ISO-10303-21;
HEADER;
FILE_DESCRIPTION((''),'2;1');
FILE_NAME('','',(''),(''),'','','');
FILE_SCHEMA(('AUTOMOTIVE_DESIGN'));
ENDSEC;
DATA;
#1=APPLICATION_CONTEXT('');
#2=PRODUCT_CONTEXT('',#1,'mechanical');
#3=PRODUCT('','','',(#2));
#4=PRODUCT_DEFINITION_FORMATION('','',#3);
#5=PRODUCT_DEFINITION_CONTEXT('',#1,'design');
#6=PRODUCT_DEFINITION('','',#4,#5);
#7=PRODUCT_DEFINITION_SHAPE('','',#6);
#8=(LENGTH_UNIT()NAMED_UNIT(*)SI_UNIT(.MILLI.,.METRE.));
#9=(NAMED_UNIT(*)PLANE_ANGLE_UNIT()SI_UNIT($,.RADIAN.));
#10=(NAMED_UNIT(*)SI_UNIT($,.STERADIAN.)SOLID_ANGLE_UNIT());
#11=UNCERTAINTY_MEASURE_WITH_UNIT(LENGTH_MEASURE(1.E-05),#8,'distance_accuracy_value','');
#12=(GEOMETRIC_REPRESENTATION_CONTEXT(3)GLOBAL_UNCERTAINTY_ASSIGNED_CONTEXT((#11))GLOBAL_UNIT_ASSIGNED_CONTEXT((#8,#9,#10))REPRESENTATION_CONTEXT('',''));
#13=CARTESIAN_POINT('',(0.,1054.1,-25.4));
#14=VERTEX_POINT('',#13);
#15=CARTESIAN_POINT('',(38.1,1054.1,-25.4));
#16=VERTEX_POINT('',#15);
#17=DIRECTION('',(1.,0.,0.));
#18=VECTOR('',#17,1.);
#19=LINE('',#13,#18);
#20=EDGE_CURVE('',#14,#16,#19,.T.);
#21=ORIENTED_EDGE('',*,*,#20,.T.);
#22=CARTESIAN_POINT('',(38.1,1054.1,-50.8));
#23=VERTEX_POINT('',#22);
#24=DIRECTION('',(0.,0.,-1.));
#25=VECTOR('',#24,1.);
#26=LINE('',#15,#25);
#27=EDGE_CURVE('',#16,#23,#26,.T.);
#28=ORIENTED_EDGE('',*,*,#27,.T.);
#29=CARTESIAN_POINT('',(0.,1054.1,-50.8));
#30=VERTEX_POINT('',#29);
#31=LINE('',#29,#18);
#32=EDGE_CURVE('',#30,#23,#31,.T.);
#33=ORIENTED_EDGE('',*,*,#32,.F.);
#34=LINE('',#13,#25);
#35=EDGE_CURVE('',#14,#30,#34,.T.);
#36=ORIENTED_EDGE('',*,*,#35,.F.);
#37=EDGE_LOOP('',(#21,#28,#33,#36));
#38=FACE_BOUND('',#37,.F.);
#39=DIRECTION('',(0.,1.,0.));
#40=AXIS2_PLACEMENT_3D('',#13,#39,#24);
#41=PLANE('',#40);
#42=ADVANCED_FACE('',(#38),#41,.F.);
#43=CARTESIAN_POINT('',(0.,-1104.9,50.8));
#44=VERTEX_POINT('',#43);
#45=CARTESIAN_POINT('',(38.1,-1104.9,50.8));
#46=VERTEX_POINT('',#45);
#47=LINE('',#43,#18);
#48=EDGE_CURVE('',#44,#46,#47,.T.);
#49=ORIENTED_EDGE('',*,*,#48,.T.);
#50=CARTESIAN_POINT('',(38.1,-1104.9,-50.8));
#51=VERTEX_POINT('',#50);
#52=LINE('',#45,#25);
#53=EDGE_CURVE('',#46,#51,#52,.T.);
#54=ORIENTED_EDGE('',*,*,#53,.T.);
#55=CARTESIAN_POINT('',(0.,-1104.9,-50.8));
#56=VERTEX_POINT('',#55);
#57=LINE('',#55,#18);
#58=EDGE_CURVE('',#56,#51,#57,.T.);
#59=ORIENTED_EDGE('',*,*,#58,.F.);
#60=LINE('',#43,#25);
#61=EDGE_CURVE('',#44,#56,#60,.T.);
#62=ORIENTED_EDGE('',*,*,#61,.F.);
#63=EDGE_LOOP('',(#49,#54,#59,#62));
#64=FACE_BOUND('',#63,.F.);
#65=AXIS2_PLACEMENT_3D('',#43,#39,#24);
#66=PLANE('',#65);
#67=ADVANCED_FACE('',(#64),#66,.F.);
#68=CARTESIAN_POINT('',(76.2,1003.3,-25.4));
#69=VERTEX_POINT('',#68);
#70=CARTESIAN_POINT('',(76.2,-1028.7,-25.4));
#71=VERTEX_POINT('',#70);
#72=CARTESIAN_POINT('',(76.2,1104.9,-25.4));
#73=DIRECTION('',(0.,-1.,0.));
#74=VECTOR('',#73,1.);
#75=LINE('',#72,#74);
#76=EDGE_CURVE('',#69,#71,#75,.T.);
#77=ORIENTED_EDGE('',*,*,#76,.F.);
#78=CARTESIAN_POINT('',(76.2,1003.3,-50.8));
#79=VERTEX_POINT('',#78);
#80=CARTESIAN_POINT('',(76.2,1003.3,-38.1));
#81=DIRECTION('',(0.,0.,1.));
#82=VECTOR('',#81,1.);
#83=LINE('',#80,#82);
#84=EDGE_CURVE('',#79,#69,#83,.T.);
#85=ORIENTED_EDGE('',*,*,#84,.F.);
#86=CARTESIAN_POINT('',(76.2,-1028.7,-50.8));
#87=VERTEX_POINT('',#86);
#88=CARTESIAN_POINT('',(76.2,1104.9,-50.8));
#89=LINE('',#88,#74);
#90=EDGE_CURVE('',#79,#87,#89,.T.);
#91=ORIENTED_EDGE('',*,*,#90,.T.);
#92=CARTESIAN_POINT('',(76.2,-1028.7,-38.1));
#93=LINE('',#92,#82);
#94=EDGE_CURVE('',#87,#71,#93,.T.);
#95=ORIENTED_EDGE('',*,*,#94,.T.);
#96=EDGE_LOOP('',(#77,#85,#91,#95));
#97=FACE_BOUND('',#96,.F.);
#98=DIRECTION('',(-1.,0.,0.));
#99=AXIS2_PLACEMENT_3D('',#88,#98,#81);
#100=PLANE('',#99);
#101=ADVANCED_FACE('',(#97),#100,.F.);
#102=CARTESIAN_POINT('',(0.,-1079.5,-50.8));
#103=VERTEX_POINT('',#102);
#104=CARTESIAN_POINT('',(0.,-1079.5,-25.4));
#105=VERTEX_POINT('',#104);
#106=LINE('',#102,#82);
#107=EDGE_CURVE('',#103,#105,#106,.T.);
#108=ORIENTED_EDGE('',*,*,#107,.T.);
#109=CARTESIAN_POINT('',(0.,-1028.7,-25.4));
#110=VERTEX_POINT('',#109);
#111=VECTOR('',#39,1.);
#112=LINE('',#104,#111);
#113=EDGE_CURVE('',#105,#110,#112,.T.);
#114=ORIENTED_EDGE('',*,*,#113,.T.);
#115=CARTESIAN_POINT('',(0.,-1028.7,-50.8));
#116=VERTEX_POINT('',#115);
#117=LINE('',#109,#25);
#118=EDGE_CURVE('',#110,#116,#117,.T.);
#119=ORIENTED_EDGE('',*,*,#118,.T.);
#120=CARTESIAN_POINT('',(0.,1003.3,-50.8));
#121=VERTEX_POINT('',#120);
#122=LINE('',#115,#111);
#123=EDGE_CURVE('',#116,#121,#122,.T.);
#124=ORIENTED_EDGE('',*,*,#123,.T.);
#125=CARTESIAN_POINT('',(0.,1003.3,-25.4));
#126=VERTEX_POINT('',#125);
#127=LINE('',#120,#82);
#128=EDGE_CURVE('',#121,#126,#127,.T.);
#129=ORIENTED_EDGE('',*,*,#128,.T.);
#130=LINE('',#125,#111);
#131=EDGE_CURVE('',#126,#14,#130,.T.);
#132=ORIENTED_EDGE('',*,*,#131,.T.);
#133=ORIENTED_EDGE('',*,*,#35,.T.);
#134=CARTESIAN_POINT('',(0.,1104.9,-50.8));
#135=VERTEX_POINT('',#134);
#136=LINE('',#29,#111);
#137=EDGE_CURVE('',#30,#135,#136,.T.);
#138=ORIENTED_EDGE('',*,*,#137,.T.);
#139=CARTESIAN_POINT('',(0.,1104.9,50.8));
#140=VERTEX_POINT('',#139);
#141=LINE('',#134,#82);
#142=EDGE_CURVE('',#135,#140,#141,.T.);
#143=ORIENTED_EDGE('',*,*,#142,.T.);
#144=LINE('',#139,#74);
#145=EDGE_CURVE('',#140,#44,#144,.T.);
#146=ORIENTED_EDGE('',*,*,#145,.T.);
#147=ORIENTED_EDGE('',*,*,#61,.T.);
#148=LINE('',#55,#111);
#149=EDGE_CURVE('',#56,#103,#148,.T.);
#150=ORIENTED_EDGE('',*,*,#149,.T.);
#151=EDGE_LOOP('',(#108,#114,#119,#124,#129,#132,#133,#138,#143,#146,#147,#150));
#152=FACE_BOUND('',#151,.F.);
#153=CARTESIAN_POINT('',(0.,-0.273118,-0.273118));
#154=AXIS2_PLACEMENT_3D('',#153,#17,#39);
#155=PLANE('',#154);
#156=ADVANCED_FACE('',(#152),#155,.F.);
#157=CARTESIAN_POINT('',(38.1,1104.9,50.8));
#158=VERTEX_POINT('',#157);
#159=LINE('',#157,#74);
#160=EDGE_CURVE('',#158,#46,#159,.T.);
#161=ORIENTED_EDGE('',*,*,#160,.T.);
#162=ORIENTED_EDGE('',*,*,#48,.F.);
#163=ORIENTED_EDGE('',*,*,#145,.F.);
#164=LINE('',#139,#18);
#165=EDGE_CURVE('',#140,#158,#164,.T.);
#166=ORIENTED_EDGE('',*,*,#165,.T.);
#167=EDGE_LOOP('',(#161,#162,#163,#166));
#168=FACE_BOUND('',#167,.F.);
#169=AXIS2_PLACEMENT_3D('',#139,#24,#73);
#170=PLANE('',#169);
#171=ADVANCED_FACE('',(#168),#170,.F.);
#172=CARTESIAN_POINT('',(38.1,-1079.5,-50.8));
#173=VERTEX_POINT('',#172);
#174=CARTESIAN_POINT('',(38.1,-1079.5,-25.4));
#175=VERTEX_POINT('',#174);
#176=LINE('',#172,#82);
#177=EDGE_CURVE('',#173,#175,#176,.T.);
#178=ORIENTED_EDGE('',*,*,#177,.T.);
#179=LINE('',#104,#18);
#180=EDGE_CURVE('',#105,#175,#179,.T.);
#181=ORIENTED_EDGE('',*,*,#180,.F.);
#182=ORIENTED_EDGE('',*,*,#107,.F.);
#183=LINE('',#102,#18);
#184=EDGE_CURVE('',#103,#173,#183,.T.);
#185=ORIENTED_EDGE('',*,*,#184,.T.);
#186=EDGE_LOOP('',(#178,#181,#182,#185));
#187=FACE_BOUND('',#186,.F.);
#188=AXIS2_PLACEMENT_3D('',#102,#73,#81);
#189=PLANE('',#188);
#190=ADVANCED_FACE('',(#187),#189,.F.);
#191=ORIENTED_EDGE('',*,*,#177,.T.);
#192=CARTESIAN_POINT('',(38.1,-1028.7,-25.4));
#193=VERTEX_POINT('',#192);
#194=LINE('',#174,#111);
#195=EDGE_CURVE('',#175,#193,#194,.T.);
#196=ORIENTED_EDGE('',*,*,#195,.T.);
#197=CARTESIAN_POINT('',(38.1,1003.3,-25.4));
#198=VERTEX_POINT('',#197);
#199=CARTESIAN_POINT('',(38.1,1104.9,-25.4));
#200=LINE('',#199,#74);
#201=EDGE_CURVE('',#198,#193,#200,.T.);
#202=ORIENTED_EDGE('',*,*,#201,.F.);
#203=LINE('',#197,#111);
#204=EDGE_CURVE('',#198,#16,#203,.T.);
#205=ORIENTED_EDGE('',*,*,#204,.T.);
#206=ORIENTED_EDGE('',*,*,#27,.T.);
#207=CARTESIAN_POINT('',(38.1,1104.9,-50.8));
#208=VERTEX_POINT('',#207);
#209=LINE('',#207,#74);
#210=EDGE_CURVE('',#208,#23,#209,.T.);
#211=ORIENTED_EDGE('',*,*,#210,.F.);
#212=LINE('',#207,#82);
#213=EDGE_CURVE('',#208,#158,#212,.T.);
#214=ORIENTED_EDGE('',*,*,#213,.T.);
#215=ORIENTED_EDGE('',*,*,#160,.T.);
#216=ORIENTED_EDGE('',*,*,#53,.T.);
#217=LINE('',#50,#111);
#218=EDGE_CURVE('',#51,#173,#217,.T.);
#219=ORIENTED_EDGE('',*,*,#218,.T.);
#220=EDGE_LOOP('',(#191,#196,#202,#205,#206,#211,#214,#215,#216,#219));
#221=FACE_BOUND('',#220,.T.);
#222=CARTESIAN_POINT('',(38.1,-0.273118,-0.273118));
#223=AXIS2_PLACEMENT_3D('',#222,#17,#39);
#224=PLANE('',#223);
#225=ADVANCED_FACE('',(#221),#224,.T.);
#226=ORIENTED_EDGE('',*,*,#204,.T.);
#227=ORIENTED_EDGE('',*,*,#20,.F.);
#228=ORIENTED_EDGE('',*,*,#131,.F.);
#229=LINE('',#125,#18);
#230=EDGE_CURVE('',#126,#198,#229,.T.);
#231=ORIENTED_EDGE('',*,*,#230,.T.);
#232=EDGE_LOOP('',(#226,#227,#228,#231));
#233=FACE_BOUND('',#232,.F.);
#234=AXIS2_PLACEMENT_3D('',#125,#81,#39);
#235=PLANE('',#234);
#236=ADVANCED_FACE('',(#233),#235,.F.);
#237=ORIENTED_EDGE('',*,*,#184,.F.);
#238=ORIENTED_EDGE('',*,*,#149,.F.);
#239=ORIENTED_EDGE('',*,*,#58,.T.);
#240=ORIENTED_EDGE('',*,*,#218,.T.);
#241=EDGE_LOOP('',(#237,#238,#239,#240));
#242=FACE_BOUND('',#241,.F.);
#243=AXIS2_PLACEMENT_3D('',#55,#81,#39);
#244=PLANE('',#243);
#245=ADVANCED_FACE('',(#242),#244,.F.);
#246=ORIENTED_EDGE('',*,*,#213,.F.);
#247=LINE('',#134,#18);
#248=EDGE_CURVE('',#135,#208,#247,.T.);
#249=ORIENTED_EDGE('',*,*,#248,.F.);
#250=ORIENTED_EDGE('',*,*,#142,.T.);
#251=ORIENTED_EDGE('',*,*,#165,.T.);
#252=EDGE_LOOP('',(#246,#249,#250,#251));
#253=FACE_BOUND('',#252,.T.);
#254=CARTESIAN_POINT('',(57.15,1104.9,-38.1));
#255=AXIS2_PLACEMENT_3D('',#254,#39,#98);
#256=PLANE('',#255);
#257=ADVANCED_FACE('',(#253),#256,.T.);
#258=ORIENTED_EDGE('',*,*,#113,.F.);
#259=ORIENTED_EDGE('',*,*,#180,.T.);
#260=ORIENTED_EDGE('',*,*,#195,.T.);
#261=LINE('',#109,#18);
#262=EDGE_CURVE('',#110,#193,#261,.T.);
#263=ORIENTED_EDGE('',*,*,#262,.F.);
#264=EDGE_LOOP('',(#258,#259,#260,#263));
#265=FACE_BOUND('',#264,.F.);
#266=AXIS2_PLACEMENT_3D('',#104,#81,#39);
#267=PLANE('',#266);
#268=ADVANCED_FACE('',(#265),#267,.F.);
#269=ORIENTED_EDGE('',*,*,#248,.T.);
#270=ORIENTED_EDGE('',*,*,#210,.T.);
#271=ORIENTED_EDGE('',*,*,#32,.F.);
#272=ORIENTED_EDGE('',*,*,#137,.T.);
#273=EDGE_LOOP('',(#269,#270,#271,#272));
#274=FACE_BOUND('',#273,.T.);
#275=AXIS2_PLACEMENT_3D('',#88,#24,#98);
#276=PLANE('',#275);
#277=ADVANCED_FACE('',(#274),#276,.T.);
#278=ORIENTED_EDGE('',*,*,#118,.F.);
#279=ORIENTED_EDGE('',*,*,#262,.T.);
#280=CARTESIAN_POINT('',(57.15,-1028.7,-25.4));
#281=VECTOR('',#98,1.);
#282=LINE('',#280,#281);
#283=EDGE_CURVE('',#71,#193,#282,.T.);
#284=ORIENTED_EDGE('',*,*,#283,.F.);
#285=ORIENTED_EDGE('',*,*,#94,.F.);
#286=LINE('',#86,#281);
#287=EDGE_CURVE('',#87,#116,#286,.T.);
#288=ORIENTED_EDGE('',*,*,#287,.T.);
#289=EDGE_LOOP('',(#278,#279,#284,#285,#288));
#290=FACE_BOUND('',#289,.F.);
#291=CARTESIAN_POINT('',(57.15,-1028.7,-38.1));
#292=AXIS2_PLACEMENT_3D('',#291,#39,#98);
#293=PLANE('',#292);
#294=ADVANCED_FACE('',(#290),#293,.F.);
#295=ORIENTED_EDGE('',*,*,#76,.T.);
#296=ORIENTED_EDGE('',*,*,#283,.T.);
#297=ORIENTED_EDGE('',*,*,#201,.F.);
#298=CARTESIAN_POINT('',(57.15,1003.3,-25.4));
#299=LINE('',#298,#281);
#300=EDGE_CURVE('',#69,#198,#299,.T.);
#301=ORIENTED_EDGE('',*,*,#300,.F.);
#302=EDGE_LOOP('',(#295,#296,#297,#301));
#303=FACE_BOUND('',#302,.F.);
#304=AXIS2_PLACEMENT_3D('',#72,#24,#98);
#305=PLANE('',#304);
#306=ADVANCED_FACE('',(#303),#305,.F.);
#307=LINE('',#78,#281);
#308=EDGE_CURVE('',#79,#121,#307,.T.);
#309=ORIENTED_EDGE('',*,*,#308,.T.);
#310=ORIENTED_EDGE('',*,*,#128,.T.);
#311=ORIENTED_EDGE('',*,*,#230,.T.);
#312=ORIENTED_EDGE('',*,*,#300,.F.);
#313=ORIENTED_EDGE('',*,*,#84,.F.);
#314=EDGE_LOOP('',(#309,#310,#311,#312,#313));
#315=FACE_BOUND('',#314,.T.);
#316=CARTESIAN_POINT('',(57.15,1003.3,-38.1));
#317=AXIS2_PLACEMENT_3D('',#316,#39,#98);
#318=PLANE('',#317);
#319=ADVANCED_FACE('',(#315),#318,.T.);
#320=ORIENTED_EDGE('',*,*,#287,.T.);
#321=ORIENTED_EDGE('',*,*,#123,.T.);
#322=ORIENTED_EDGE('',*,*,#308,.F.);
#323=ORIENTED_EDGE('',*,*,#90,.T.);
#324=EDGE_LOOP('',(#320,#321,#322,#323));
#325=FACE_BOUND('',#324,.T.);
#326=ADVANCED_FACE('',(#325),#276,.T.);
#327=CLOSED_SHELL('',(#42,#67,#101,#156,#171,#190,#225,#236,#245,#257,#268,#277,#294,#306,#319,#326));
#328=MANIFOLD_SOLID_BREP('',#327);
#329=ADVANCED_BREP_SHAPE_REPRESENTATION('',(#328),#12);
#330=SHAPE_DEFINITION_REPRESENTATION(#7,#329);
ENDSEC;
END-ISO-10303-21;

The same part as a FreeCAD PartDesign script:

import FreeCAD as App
import Part
import Sketcher
Q = App.Units.Quantity


def add_polygon(sketch, points):
    """Adds a closed chain of lines whose ends are joined by coincident constraints."""
    first, n = sketch.GeometryCount, len(points)
    for a, b in zip(points, points[1:] + points[:1]):
        sketch.addGeometry(Part.LineSegment(App.Vector(*a, 0), App.Vector(*b, 0)), False)
    for i in range(n):
        sketch.addConstraint(Sketcher.Constraint("Coincident", first + i, 2, first + (i + 1) % n, 1))

doc = App.newDocument("Part")
body = doc.addObject("PartDesign::Body", "Body")

sketch1 = doc.addObject("Sketcher::SketchObject", "Sketch")
body.addObject(sketch1)
sketch1.AttachmentSupport = (doc.YZ_Plane, [""])
sketch1.MapMode = "FlatFace"
add_polygon(sketch1, [(1105, 51), (-1105, 51), (-1105, -51), (-1080, -51), (-1080, -25), (-1029, -25), (-1029, -51), (1003, -51), (1003, -25), (1054, -25), (1054, -51), (1105, -51)])
sketch1.addConstraint([
    Sketcher.Constraint("Horizontal", 0),
    Sketcher.Constraint("Vertical", 1),
    Sketcher.Constraint("Horizontal", 2),
    Sketcher.Constraint("Vertical", 3),
    Sketcher.Constraint("Horizontal", 4),
    Sketcher.Constraint("Vertical", 5),
    Sketcher.Constraint("Horizontal", 6),
    Sketcher.Constraint("Vertical", 7),
    Sketcher.Constraint("Horizontal", 8),
    Sketcher.Constraint("Vertical", 9),
    Sketcher.Constraint("Horizontal", 10),
    Sketcher.Constraint("Vertical", 11),
    Sketcher.Constraint("Symmetric", 0, 2, 10, 2, -1, 1),
    Sketcher.Constraint("Horizontal", 2, 2, 5, 2),
    Sketcher.Constraint("Horizontal", 4, 2, 7, 2),
    Sketcher.Constraint("Horizontal", 6, 2, 9, 2),
    Sketcher.Constraint("Equal", 4, 8),
    Sketcher.Constraint("Equal", 8, 10),
    Sketcher.Constraint("Equal", 2, 3),
    Sketcher.Constraint("DistanceX", 0, 2, 0, 1, Q("87 in")),
    Sketcher.Constraint("DistanceX", 2, 1, 2, 2, Q("1 in")),
    Sketcher.Constraint("DistanceX", 4, 1, 4, 2, Q("2 in")),
    Sketcher.Constraint("DistanceY", 1, 2, 1, 1, Q("4 in")),
])
pad1 = doc.addObject("PartDesign::Pad", "Pad")
body.addObject(pad1)
pad1.Profile = sketch1
pad1.Length = Q("1.5 in")

sketch2 = doc.addObject("Sketcher::SketchObject", "Sketch001")
body.addObject(sketch2)
sketch2.AttachmentSupport = (doc.XZ_Plane, [""])
sketch2.MapMode = "FlatFace"
sketch2.AttachmentOffset = App.Placement(App.Vector(0, 0, -43.5 * 25.4), App.Rotation())
add_polygon(sketch2, [(76, -25), (76, -51), (38, -51), (38, -25)])
sketch2.addConstraint([
    Sketcher.Constraint("Vertical", 0),
    Sketcher.Constraint("Horizontal", 1),
    Sketcher.Constraint("Vertical", 2),
    Sketcher.Constraint("Horizontal", 3),
    Sketcher.Constraint("DistanceY", 0, 2, 0, 1, Q("1 in")),
    Sketcher.Constraint("DistanceX", 1, 2, 1, 1, Q("1.5 in")),
    Sketcher.Constraint("DistanceX", -1, 1, 0, 2, Q("3 in")),
    Sketcher.Constraint("DistanceY", 0, 2, -1, 1, Q("2 in")),
])
pad2 = doc.addObject("PartDesign::Pad", "Pad001")
body.addObject(pad2)
pad2.Profile = sketch2
pad2.Length = Q("84 in")

sketch3 = doc.addObject("Sketcher::SketchObject", "Sketch002")
body.addObject(sketch3)
sketch3.AttachmentSupport = (doc.XZ_Plane, [""])
sketch3.MapMode = "FlatFace"
sketch3.AttachmentOffset = App.Placement(App.Vector(0, 0, -43.5 * 25.4), App.Rotation())
add_polygon(sketch3, [(76, -25), (76, -51), (38, -51), (38, -25)])
sketch3.addConstraint([
    Sketcher.Constraint("Vertical", 0),
    Sketcher.Constraint("Horizontal", 1),
    Sketcher.Constraint("Vertical", 2),
    Sketcher.Constraint("Horizontal", 3),
    Sketcher.Constraint("DistanceY", 0, 2, 0, 1, Q("1 in")),
    Sketcher.Constraint("DistanceX", 1, 2, 1, 1, Q("1.5 in")),
    Sketcher.Constraint("DistanceX", -1, 1, 0, 2, Q("3 in")),
    Sketcher.Constraint("DistanceY", 0, 2, -1, 1, Q("2 in")),
])
pocket1 = doc.addObject("PartDesign::Pocket", "Pocket")
body.addObject(pocket1)
pocket1.Profile = sketch3
pocket1.Length = Q("4 in")
pocket1.Reversed = True

doc.recompute()
